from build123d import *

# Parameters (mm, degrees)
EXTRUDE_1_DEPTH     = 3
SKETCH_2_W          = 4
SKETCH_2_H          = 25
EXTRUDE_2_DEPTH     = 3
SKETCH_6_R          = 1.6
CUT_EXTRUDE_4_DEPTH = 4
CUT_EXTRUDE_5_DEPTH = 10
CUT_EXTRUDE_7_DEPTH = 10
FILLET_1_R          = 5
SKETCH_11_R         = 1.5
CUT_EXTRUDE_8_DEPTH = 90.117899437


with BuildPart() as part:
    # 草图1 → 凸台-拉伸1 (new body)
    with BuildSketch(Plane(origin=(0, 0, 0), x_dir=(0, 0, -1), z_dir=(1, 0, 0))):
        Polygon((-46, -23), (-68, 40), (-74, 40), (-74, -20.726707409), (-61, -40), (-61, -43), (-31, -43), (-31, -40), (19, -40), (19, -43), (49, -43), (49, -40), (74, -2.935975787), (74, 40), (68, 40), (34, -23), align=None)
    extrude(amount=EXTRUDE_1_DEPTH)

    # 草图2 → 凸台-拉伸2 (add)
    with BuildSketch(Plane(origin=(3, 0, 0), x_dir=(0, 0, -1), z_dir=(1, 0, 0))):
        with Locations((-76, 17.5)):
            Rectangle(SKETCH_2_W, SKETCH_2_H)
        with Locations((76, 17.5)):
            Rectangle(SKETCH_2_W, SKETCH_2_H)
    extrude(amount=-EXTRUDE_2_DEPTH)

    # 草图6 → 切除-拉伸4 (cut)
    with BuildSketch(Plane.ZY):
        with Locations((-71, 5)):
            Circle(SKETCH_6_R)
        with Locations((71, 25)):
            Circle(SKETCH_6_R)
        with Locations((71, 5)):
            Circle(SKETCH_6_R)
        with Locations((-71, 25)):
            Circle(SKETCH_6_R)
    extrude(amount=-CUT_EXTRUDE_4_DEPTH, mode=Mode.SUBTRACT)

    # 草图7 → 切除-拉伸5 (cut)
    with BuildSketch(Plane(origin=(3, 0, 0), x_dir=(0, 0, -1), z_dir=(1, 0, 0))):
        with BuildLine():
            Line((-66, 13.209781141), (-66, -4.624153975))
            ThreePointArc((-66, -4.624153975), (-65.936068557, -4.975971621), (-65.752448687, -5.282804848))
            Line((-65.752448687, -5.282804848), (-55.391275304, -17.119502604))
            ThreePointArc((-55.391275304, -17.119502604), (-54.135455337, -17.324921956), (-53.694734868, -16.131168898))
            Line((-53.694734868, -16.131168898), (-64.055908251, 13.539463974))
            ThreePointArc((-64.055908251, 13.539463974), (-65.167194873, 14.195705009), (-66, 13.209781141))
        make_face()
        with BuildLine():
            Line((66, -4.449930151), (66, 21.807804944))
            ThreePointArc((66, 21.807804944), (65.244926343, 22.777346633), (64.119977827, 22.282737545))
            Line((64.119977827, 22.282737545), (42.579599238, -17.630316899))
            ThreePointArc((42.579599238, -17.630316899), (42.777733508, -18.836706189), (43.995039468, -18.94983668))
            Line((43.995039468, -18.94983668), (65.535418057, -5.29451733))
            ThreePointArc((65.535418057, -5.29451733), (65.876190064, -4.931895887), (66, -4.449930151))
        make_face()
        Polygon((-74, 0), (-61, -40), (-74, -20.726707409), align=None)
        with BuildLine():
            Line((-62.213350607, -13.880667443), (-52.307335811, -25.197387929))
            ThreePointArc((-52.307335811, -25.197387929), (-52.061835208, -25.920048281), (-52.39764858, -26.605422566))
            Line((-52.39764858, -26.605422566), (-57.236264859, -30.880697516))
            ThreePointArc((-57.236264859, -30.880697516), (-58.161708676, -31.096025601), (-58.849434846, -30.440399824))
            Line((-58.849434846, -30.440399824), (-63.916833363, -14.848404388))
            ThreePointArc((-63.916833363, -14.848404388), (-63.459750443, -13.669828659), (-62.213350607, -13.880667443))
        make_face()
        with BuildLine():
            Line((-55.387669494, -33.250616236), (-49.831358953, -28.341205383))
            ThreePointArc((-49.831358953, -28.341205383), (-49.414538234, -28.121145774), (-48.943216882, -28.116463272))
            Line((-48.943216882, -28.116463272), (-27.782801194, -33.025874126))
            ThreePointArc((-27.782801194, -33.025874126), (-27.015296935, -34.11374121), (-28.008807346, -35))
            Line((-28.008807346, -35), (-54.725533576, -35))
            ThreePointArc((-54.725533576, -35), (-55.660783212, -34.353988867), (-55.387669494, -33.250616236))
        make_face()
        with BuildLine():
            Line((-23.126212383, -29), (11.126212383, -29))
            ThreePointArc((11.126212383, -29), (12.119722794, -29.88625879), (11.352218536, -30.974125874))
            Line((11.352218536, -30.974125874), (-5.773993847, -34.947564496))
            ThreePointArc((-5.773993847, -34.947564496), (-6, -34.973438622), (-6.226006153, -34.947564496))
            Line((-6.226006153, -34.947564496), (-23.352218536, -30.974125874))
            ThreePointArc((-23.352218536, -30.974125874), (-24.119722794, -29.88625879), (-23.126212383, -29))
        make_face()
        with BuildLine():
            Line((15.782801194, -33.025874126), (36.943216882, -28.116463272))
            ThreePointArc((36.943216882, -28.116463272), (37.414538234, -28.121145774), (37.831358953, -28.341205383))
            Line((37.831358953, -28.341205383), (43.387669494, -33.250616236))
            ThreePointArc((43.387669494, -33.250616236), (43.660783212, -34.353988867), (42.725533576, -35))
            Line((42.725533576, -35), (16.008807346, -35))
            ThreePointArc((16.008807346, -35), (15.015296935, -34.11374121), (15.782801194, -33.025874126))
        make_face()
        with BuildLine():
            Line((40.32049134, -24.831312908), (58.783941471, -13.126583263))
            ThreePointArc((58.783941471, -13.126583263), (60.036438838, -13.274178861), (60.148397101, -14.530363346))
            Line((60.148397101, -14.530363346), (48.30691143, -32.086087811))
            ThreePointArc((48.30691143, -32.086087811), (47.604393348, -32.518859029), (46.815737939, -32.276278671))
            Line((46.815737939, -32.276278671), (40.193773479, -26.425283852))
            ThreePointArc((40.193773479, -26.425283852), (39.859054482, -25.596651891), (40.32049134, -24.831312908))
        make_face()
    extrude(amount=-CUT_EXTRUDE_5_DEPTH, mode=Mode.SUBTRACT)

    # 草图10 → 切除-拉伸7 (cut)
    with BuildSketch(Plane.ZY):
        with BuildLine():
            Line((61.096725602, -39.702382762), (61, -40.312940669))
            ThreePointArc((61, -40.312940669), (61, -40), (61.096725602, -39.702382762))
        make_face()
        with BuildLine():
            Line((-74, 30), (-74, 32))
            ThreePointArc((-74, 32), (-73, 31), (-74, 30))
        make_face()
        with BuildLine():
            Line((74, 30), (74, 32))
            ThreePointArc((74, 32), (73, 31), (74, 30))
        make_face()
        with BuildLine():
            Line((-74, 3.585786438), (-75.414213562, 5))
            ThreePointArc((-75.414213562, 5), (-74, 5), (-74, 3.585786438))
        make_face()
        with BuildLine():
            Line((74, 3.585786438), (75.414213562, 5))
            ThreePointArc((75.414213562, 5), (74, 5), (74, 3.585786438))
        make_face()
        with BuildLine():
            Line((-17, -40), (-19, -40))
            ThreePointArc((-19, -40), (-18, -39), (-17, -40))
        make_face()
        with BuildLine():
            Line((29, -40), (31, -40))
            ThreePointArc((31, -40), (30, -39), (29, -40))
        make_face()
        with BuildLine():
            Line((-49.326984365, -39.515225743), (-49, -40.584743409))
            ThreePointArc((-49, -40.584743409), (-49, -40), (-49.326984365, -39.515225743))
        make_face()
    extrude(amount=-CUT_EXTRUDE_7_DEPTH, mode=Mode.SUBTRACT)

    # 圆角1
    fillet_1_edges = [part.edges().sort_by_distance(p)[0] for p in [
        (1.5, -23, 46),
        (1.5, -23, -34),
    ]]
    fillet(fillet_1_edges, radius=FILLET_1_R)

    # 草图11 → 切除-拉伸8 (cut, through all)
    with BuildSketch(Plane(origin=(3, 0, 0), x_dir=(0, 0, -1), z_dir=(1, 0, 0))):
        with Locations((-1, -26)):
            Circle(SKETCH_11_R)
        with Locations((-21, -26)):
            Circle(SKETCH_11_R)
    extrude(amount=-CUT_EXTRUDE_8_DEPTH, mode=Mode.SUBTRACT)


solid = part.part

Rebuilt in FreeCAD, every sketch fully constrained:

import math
import FreeCAD as App
import Part
import Sketcher

V = App.Vector
Q = App.Units.Quantity


def edges_at(feature, points):
    """Names of the edges that pass closest to the given points."""
    edges = feature.Shape.Edges
    near = lambda p: min(range(len(edges)), key=lambda i: edges[i].distToShape(Part.Vertex(*p))[0])
    return sorted({f"Edge{near(p) + 1}" for p in points})


def add_polygon(sketch, points):
    """Adds a closed chain of lines whose ends are joined by coincident constraints."""
    first, n = sketch.GeometryCount, len(points)
    for a, b in zip(points, points[1:] + points[:1]):
        sketch.addGeometry(Part.LineSegment(App.Vector(*a, 0), App.Vector(*b, 0)), False)
    for i in range(n):
        sketch.addConstraint(Sketcher.Constraint("Coincident", first + i, 2, first + (i + 1) % n, 1))

doc = App.newDocument("Part")
params = doc.addObject("Spreadsheet::Sheet", "Params")
for row, (alias, value) in enumerate([
    ("sketch1_width", "3 mm"),
    ("sketch1_height", "6 mm"),
    ("sketch1_height2", "30 mm"),
    ("sketch1_height3", "50 mm"),
    ("sketch1_height4", "80 mm"),
    ("pad1_length", "3 mm"),
    ("sketch2_width", "25 mm"),
    ("sketch2_height", "4 mm"),
    ("pad2_length", "3 mm"),
    ("sketch3_diameter", "3.2 mm"),
    ("pocket1_length", "4 mm"),
    ("sketch4_radius", "1 mm"),
    ("pocket2_length", "10 mm"),
    ("sketch5_radius", "1 mm"),
    ("pocket3_length", "10 mm"),
    ("fillet_radius", "5 mm"),
    ("sketch6_diameter", "3 mm"),
], start=1):
    params.set(f"A{row}", alias)
    params.set(f"B{row}", "=" + value)
    params.setAlias(f"B{row}", alias)

body = doc.addObject("PartDesign::Body", "Body")

# Sketch on YZ plane
sketch1 = body.newObject("Sketcher::SketchObject", "Sketch")
sketch1.AttachmentSupport = (doc.getObject("YZ_Plane"), [""])
sketch1.MapMode = "FlatFace"
add_polygon(sketch1, [(-23, 46), (40, 68), (40, 74), (-20.726707, 74), (-40, 61), (-43, 61), (-43, 31), (-40, 31), (-40, -19), (-43, -19), (-43, -49), (-40, -49), (-2.935976, -74), (40, -74), (40, -68), (-23, -34)])  # lines 0-15
sketch1.addConstraint([
    Sketcher.Constraint("Vertical", 1),
    Sketcher.Constraint("Horizontal", 2),
    Sketcher.Constraint("Horizontal", 4),
    Sketcher.Constraint("Vertical", 5),
    Sketcher.Constraint("Horizontal", 6),
    Sketcher.Constraint("Vertical", 7),
    Sketcher.Constraint("Horizontal", 8),
    Sketcher.Constraint("Vertical", 9),
    Sketcher.Constraint("Horizontal", 10),
    Sketcher.Constraint("Horizontal", 12),
    Sketcher.Constraint("Vertical", 13),
    Sketcher.Constraint("Vertical", 15),
    Sketcher.Constraint("Symmetric", 1, 2, 12, 2, -1),
    Sketcher.Constraint("Vertical", 3, 2, 6, 2),
    Sketcher.Constraint("Vertical", 5, 2, 8, 2),
    Sketcher.Constraint("Vertical", 7, 2, 10, 2),
    Sketcher.Constraint("Equal", 5, 9),
    Sketcher.Constraint("Equal", 1, 13),
    Sketcher.Constraint("DistanceX", 4, 2, 4, 1, Q("3 mm")),
    Sketcher.Constraint("DistanceY", 1, 1, 1, 2, Q("6 mm")),
    Sketcher.Constraint("DistanceY", 5, 2, 5, 1, Q("30 mm")),
    Sketcher.Constraint("DistanceY", 7, 2, 7, 1, Q("50 mm")),
    Sketcher.Constraint("DistanceY", 15, 1, 15, 2, Q("80 mm")),
    Sketcher.Constraint("Angle", 3, Q("-146 deg")),
    Sketcher.Constraint("Angle", 11, Q("-34 deg")),
    Sketcher.Constraint("DistanceX", -1, 1, 0, 2, Q("40 mm")),
    Sketcher.Constraint("DistanceY", -1, 1, 0, 2, Q("68 mm")),
    Sketcher.Constraint("DistanceX", 3, 2, -1, 1, Q("40 mm")),
    Sketcher.Constraint("DistanceY", -1, 1, 3, 2, Q("61 mm")),
    Sketcher.Constraint("DistanceX", 14, 2, -1, 1, Q("23 mm")),
    Sketcher.Constraint("DistanceY", 14, 2, -1, 1, Q("34 mm")),
])
sketch1.setExpression("Constraints[34]", "Params.sketch1_width")
sketch1.setExpression("Constraints[35]", "Params.sketch1_height")
sketch1.setExpression("Constraints[36]", "Params.sketch1_height2")
sketch1.setExpression("Constraints[37]", "Params.sketch1_height3")
sketch1.setExpression("Constraints[38]", "Params.sketch1_height4")
pad1 = body.newObject("PartDesign::Pad", "Pad")
pad1.Profile = sketch1
pad1.setExpression("Length", "Params.pad1_length")

# Sketch on YZ plane
sketch2 = body.newObject("Sketcher::SketchObject", "Sketch001")
sketch2.AttachmentSupport = (doc.getObject("YZ_Plane"), [""])
sketch2.MapMode = "FlatFace"
sketch2.AttachmentOffset = App.Placement(V(0, 0, 3), App.Rotation())
add_polygon(sketch2, [(30, 78), (5, 78), (5, 74), (30, 74)])  # lines 0-3
add_polygon(sketch2, [(30, -74), (5, -74), (5, -78), (30, -78)])  # lines 4-7
sketch2.addConstraint([
    Sketcher.Constraint("Horizontal", 0),
    Sketcher.Constraint("Vertical", 1),
    Sketcher.Constraint("Horizontal", 2),
    Sketcher.Constraint("Vertical", 3),
    Sketcher.Constraint("Horizontal", 4),
    Sketcher.Constraint("Vertical", 5),
    Sketcher.Constraint("Horizontal", 6),
    Sketcher.Constraint("Vertical", 7),
    Sketcher.Constraint("Symmetric", 1, 2, 4, 2, -1),
    Sketcher.Constraint("Symmetric", 3, 2, 6, 2, -1),
    Sketcher.Constraint("DistanceX", 0, 2, 0, 1, Q("25 mm")),
    Sketcher.Constraint("DistanceY", 1, 2, 1, 1, Q("4 mm")),
    Sketcher.Constraint("DistanceX", -1, 1, 0, 2, Q("5 mm")),
    Sketcher.Constraint("DistanceY", -1, 1, 0, 2, Q("78 mm")),
])
sketch2.setExpression("Constraints[18]", "Params.sketch2_width")
sketch2.setExpression("Constraints[19]", "Params.sketch2_height")
pad2 = body.newObject("PartDesign::Pad", "Pad001")
pad2.Profile = sketch2
pad2.setExpression("Length", "Params.pad2_length")
pad2.Reversed = True

# Sketch on YZ plane
sketch3 = body.newObject("Sketcher::SketchObject", "Sketch002")
sketch3.AttachmentSupport = (doc.getObject("YZ_Plane"), [""])
sketch3.MapMode = "FlatFace"
sketch3.addGeometry([
    Part.Circle(V(5, -71, 0), V(0, 0, 1), 1.6),
    Part.Circle(V(25, 71, 0), V(0, 0, 1), 1.6),
    Part.Circle(V(5, 71, 0), V(0, 0, 1), 1.6),
    Part.Circle(V(25, -71, 0), V(0, 0, 1), 1.6),
], False)
sketch3.addConstraint([
    Sketcher.Constraint("Equal", 0, 1),
    Sketcher.Constraint("Equal", 1, 2),
    Sketcher.Constraint("Equal", 2, 3),
    Sketcher.Constraint("Symmetric", 0, 3, 2, 3, -1),
    Sketcher.Constraint("Symmetric", 1, 3, 3, 3, -1),
    Sketcher.Constraint("Horizontal", 1, 3, 2, 3),
    Sketcher.Constraint("Diameter", 0, Q("3.2 mm")),
    Sketcher.Constraint("DistanceX", -1, 1, 0, 3, Q("5 mm")),
    Sketcher.Constraint("DistanceY", 0, 3, -1, 1, Q("71 mm")),
    Sketcher.Constraint("DistanceX", -1, 1, 1, 3, Q("25 mm")),
])
sketch3.setExpression("Constraints[6]", "Params.sketch3_diameter")
pocket1 = body.newObject("PartDesign::Pocket", "Pocket")
pocket1.Profile = sketch3
pocket1.setExpression("Length", "Params.pocket1_length")
pocket1.Reversed = True

# Sketch on YZ plane
sketch4 = body.newObject("Sketcher::SketchObject", "Sketch003")
sketch4.AttachmentSupport = (doc.getObject("YZ_Plane"), [""])
sketch4.MapMode = "FlatFace"
sketch4.AttachmentOffset = App.Placement(V(0, 0, 3), App.Rotation())
sketch4.addGeometry(Part.LineSegment(V(13.209781, 66, 0), V(-4.624154, 66, 0)), False)  # 0
sketch4.addGeometry(Part.ArcOfCircle(Part.Circle(V(-4.624154, 65, 0), V(0, 0, 1), 1), math.radians(90), math.radians(131.197062)), False)  # 1
sketch4.addGeometry(Part.LineSegment(V(-5.282805, 65.752449, 0), V(-17.119503, 55.391275, 0)), False)  # 2
sketch4.addGeometry(Part.ArcOfCircle(Part.Circle(V(-16.460852, 54.638827, 0), V(0, 0, 1), 1), math.radians(131.197062), math.radians(289.249526)), False)  # 3
sketch4.addGeometry(Part.LineSegment(V(-16.131169, 53.694735, 0), V(13.539464, 64.055908, 0)), False)  # 4
sketch4.addGeometry(Part.ArcOfCircle(Part.Circle(V(13.209781, 65, 0), V(0, 0, 1), 1), math.radians(-70.750474), math.radians(90)), False)  # 5
sketch4.addGeometry(Part.LineSegment(V(-4.44993, -66, 0), V(21.807805, -66, 0)), False)  # 6
sketch4.addGeometry(Part.ArcOfCircle(Part.Circle(V(21.807805, -65, 0), V(0, 0, 1), 1), math.radians(-90), math.radians(61.645038)), False)  # 7
sketch4.addGeometry(Part.LineSegment(V(22.282738, -64.119978, 0), V(-17.630317, -42.579599, 0)), False)  # 8
sketch4.addGeometry(Part.ArcOfCircle(Part.Circle(V(-18.105249, -43.459621, 0), V(0, 0, 1), 1), math.radians(61.645038), math.radians(212.372267)), False)  # 9
sketch4.addGeometry(Part.LineSegment(V(-18.949837, -43.995039, 0), V(-5.294517, -65.535418, 0)), False)  # 10
sketch4.addGeometry(Part.ArcOfCircle(Part.Circle(V(-4.44993, -65, 0), V(0, 0, 1), 1), math.radians(-147.627733), math.radians(-90)), False)  # 11
add_polygon(sketch4, [(-40, 61), (0, 74), (-20.726707, 74)])  # lines 12-14
sketch4.addGeometry(Part.LineSegment(V(-25.197388, 52.307336, 0), V(-13.880667, 62.213351, 0)), False)  # 15
sketch4.addGeometry(Part.ArcOfCircle(Part.Circle(V(-14.539318, 62.965799, 0), V(0, 0, 1), 1), math.radians(-48.802938), math.radians(108.004162)), False)  # 16
sketch4.addGeometry(Part.LineSegment(V(-14.848404, 63.916833, 0), V(-30.4404, 58.849435, 0)), False)  # 17
sketch4.addGeometry(Part.ArcOfCircle(Part.Circle(V(-30.131314, 57.898401, 0), V(0, 0, 1), 1), math.radians(108.004162), math.radians(221.462974)), False)  # 18
sketch4.addGeometry(Part.LineSegment(V(-30.880698, 57.236265, 0), V(-26.605423, 52.397649, 0)), False)  # 19
sketch4.addGeometry(Part.ArcOfCircle(Part.Circle(V(-25.856039, 53.059784, 0), V(0, 0, 1), 1), math.radians(-138.537026), math.radians(-48.802938)), False)  # 20
sketch4.addGeometry(Part.LineSegment(V(-28.341205, 49.831359, 0), V(-33.250616, 55.387669, 0)), False)  # 21
sketch4.addGeometry(Part.ArcOfCircle(Part.Circle(V(-34, 54.725534, 0), V(0, 0, 1), 1), math.radians(41.462974), math.radians(180)), False)  # 22
sketch4.addGeometry(Part.LineSegment(V(-35, 54.725534, 0), V(-35, 28.008807, 0)), False)  # 23
sketch4.addGeometry(Part.ArcOfCircle(Part.Circle(V(-34, 28.008807, 0), V(0, 0, 1), 1), math.radians(180), math.radians(346.937949)), False)  # 24
sketch4.addGeometry(Part.LineSegment(V(-33.025874, 27.782801, 0), V(-28.116463, 48.943217, 0)), False)  # 25
sketch4.addGeometry(Part.ArcOfCircle(Part.Circle(V(-29.090589, 49.169223, 0), V(0, 0, 1), 1), math.radians(-13.062051), math.radians(41.462974)), False)  # 26
sketch4.addGeometry(Part.LineSegment(V(-29, -11.126212, 0), V(-29, 23.126212, 0)), False)  # 27
sketch4.addGeometry(Part.ArcOfCircle(Part.Circle(V(-30, 23.126212, 0), V(0, 0, 1), 1), math.radians(0), math.radians(166.937949)), False)  # 28
sketch4.addGeometry(Part.LineSegment(V(-30.974126, 23.352219, 0), V(-34.947564, 6.226006, 0)), False)  # 29
sketch4.addGeometry(Part.ArcOfCircle(Part.Circle(V(-33.973439, 6, 0), V(0, 0, 1), 1), math.radians(166.937949), math.radians(193.062051)), False)  # 30
sketch4.addGeometry(Part.LineSegment(V(-34.947564, 5.773994, 0), V(-30.974126, -11.352219, 0)), False)  # 31
sketch4.addGeometry(Part.ArcOfCircle(Part.Circle(V(-30, -11.126212, 0), V(0, 0, 1), 1), math.radians(-166.937949), math.radians(0)), False)  # 32
sketch4.addGeometry(Part.LineSegment(V(-28.116463, -36.943217, 0), V(-33.025874, -15.782801, 0)), False)  # 33
sketch4.addGeometry(Part.ArcOfCircle(Part.Circle(V(-34, -16.008807, 0), V(0, 0, 1), 1), math.radians(13.062051), math.radians(180)), False)  # 34
sketch4.addGeometry(Part.LineSegment(V(-35, -16.008807, 0), V(-35, -42.725534, 0)), False)  # 35
sketch4.addGeometry(Part.ArcOfCircle(Part.Circle(V(-34, -42.725534, 0), V(0, 0, 1), 1), math.radians(180), math.radians(318.537026)), False)  # 36
sketch4.addGeometry(Part.LineSegment(V(-33.250616, -43.387669, 0), V(-28.341205, -37.831359, 0)), False)  # 37
sketch4.addGeometry(Part.ArcOfCircle(Part.Circle(V(-29.090589, -37.169223, 0), V(0, 0, 1), 1), math.radians(-41.462974), math.radians(13.062051)), False)  # 38
sketch4.addGeometry(Part.LineSegment(V(-13.126583, -58.783941, 0), V(-24.831313, -40.320491, 0)), False)  # 39
sketch4.addGeometry(Part.ArcOfCircle(Part.Circle(V(-25.6759, -40.855909, 0), V(0, 0, 1), 1), math.radians(32.372268), math.radians(138.537026)), False)  # 40
sketch4.addGeometry(Part.LineSegment(V(-26.425284, -40.193773, 0), V(-32.276279, -46.815738, 0)), False)  # 41
sketch4.addGeometry(Part.ArcOfCircle(Part.Circle(V(-31.526895, -47.477874, 0), V(0, 0, 1), 1), math.radians(138.537026), math.radians(236)), False)  # 42
sketch4.addGeometry(Part.LineSegment(V(-32.086088, -48.306911, 0), V(-14.530363, -60.148397, 0)), False)  # 43
sketch4.addGeometry(Part.ArcOfCircle(Part.Circle(V(-13.97117, -59.31936, 0), V(0, 0, 1), 1), math.radians(-124), math.radians(32.372268)), False)  # 44
sketch4.addConstraint([
    Sketcher.Constraint("Tangent", 0, 2, 1, 1),
    Sketcher.Constraint("Tangent", 1, 2, 2, 1),
    Sketcher.Constraint("Tangent", 2, 2, 3, 1),
    Sketcher.Constraint("Tangent", 3, 2, 4, 1),
    Sketcher.Constraint("Tangent", 4, 2, 5, 1),
    Sketcher.Constraint("Tangent", 5, 2, 0, 1),
    Sketcher.Constraint("Tangent", 6, 2, 7, 1),
    Sketcher.Constraint("Tangent", 7, 2, 8, 1),
    Sketcher.Constraint("Tangent", 8, 2, 9, 1),
    Sketcher.Constraint("Tangent", 9, 2, 10, 1),
    Sketcher.Constraint("Tangent", 10, 2, 11, 1),
    Sketcher.Constraint("Tangent", 11, 2, 6, 1),
    Sketcher.Constraint("Tangent", 15, 2, 16, 1),
    Sketcher.Constraint("Tangent", 16, 2, 17, 1),
    Sketcher.Constraint("Tangent", 17, 2, 18, 1),
    Sketcher.Constraint("Tangent", 18, 2, 19, 1),
    Sketcher.Constraint("Tangent", 19, 2, 20, 1),
    Sketcher.Constraint("Tangent", 20, 2, 15, 1),
    Sketcher.Constraint("Tangent", 21, 2, 22, 1),
    Sketcher.Constraint("Tangent", 22, 2, 23, 1),
    Sketcher.Constraint("Tangent", 23, 2, 24, 1),
    Sketcher.Constraint("Tangent", 24, 2, 25, 1),
    Sketcher.Constraint("Tangent", 25, 2, 26, 1),
    Sketcher.Constraint("Tangent", 26, 2, 21, 1),
    Sketcher.Constraint("Tangent", 27, 2, 28, 1),
    Sketcher.Constraint("Tangent", 28, 2, 29, 1),
    Sketcher.Constraint("Tangent", 29, 2, 30, 1),
    Sketcher.Constraint("Tangent", 30, 2, 31, 1),
    Sketcher.Constraint("Tangent", 31, 2, 32, 1),
    Sketcher.Constraint("Tangent", 32, 2, 27, 1),
    Sketcher.Constraint("Tangent", 33, 2, 34, 1),
    Sketcher.Constraint("Tangent", 34, 2, 35, 1),
    Sketcher.Constraint("Tangent", 35, 2, 36, 1),
    Sketcher.Constraint("Tangent", 36, 2, 37, 1),
    Sketcher.Constraint("Tangent", 37, 2, 38, 1),
    Sketcher.Constraint("Tangent", 38, 2, 33, 1),
    Sketcher.Constraint("Tangent", 39, 2, 40, 1),
    Sketcher.Constraint("Tangent", 40, 2, 41, 1),
    Sketcher.Constraint("Tangent", 41, 2, 42, 1),
    Sketcher.Constraint("Tangent", 42, 2, 43, 1),
    Sketcher.Constraint("Tangent", 43, 2, 44, 1),
    Sketcher.Constraint("Tangent", 44, 2, 39, 1),
    Sketcher.Constraint("Horizontal", 0),
    Sketcher.Constraint("Horizontal", 6),
    Sketcher.Constraint("Horizontal", 13),
    Sketcher.Constraint("Vertical", 23),
    Sketcher.Constraint("Vertical", 27),
    Sketcher.Constraint("Vertical", 35),
    Sketcher.Constraint("Equal", 1, 3),
    Sketcher.Constraint("Equal", 3, 5),
    Sketcher.Constraint("Equal", 5, 7),
    Sketcher.Constraint("Equal", 7, 9),
    Sketcher.Constraint("Equal", 9, 11),
    Sketcher.Constraint("Equal", 11, 16),
    Sketcher.Constraint("Equal", 16, 18),
    Sketcher.Constraint("Equal", 18, 20),
    Sketcher.Constraint("Equal", 20, 22),
    Sketcher.Constraint("Equal", 22, 24),
    Sketcher.Constraint("Equal", 24, 26),
    Sketcher.Constraint("Equal", 26, 28),
    Sketcher.Constraint("Equal", 28, 30),
    Sketcher.Constraint("Equal", 30, 32),
    Sketcher.Constraint("Equal", 32, 34),
    Sketcher.Constraint("Equal", 34, 36),
    Sketcher.Constraint("Equal", 36, 38),
    Sketcher.Constraint("Equal", 38, 40),
    Sketcher.Constraint("Equal", 40, 42),
    Sketcher.Constraint("Equal", 42, 44),
    Sketcher.Constraint("PointOnObject", 12, 2, -2),
    Sketcher.Constraint("Parallel", 2, 15),
    Sketcher.Constraint("Parallel", 12, 17),
    Sketcher.Constraint("Parallel", 19, 21),
    Sketcher.Constraint("Parallel", 25, 29),
    Sketcher.Constraint("Parallel", 31, 33),
    Sketcher.Constraint("Parallel", 10, 39),
    Sketcher.Constraint("Parallel", 37, 41),
    Sketcher.Constraint("Vertical", 24, 3, 34, 3),
    Sketcher.Constraint("Vertical", 26, 3, 38, 3),
    Sketcher.Constraint("Vertical", 21, 2, 36, 2),
    Sketcher.Constraint("Equal", 23, 35),
    Sketcher.Constraint("Radius", 1, Q("1 mm")),
    Sketcher.Constraint("Angle", 14, Q("-146 deg")),
    Sketcher.Constraint("Angle", 43, Q("-34 deg")),
    Sketcher.Constraint("DistanceY", -1, 1, 1, 3, Q("65 mm")),
    Sketcher.Constraint("DistanceY", 7, 3, -1, 1, Q("65 mm")),
    Sketcher.Constraint("DistanceX", 22, 3, -1, 1, Q("34 mm")),
    Sketcher.Constraint("DistanceX", 28, 3, -1, 1, Q("30 mm")),
    Sketcher.Constraint("DistanceY", -1, 1, 30, 3, Q("6 mm")),
    Sketcher.Constraint("DistanceY", -1, 1, 12, 2, Q("74 mm")),
    Sketcher.Constraint("DistanceX", 14, 2, -1, 1, Q("40 mm")),
    Sketcher.Constraint("DistanceY", -1, 1, 14, 2, Q("61 mm")),
    Sketcher.Constraint("Distance", 4, Q("31.427701 mm")),
    Sketcher.Constraint("Distance", 8, Q("45.354601 mm")),
    Sketcher.Constraint("DistanceY", -1, 1, 16, 3, Q("62.965799 mm")),
    Sketcher.Constraint("DistanceY", -1, 1, 18, 3, Q("57.898401 mm")),
    Sketcher.Constraint("DistanceX", 40, 3, -1, 1, Q("25.6759 mm")),
    Sketcher.Constraint("DistanceY", 8, 2, -1, 1, Q("42.579599 mm")),
    Sketcher.Constraint("DistanceX", 17, 2, -1, 1, Q("30.4404 mm")),
    Sketcher.Constraint("DistanceY", -1, 1, 24, 2, Q("27.782801 mm")),
    Sketcher.Constraint("DistanceY", 33, 2, -1, 1, Q("15.782801 mm")),
    Sketcher.Constraint("Distance", 29, Q("17.581108 mm")),
    Sketcher.Constraint("Distance", 43, Q("21.17603 mm")),
    Sketcher.Constraint("DistanceX", 0, 2, 0, 1, Q("17.833935 mm")),
    Sketcher.Constraint("DistanceX", 6, 1, 6, 2, Q("26.257735 mm")),
    Sketcher.Constraint("DistanceY", 23, 2, 23, 1, Q("26.716726 mm")),
    Sketcher.Constraint("DistanceY", 27, 1, 27, 2, Q("34.252425 mm")),
    Sketcher.Constraint("DistanceX", 3, 3, -1, 1, Q("16.460852 mm")),
    Sketcher.Constraint("DistanceX", -1, 1, 5, 3, Q("13.209781 mm")),
    Sketcher.Constraint("DistanceX", 9, 3, -1, 1, Q("18.105249 mm")),
    Sketcher.Constraint("DistanceX", 20, 3, -1, 1, Q("25.856039 mm")),
    Sketcher.Constraint("DistanceY", 40, 3, -1, 1, Q("40.855909 mm")),
])
sketch4.setExpression("Constraints[83]", "Params.sketch4_radius")
pocket2 = body.newObject("PartDesign::Pocket", "Pocket001")
pocket2.Profile = sketch4
pocket2.setExpression("Length", "Params.pocket2_length")

# Sketch on YZ plane
sketch5 = body.newObject("Sketcher::SketchObject", "Sketch004")
sketch5.AttachmentSupport = (doc.getObject("YZ_Plane"), [""])
sketch5.MapMode = "FlatFace"
sketch5.addGeometry([
    Part.LineSegment(V(-40.312941, 61, 0), V(-39.702383, 61.096726, 0)),  # 0
    Part.ArcOfCircle(Part.Circle(V(-40.15647, 61.987683, 0), V(0, 0, 1), 1), math.radians(-99.002081), math.radians(-62.993758)),  # 1
    Part.LineSegment(V(32, -74, 0), V(30, -74, 0)),  # 2
    Part.ArcOfCircle(Part.Circle(V(31, -74, 0), V(0, 0, 1), 1), math.radians(0), math.radians(180)),  # 3
    Part.LineSegment(V(30, 74, 0), V(32, 74, 0)),  # 4
    Part.ArcOfCircle(Part.Circle(V(31, 74, 0), V(0, 0, 1), 1), math.radians(180), math.radians(360)),  # 5
    Part.LineSegment(V(5, -75.414214, 0), V(3.585786, -74, 0)),  # 6
    Part.ArcOfCircle(Part.Circle(V(4.292893, -74.707107, 0), V(0, 0, 1), 1), math.radians(-45), math.radians(135)),  # 7
    Part.LineSegment(V(3.585786, 74, 0), V(5, 75.414214, 0)),  # 8
    Part.ArcOfCircle(Part.Circle(V(4.292893, 74.707107, 0), V(0, 0, 1), 1), math.radians(-135), math.radians(45)),  # 9
    Part.LineSegment(V(-40, -19, 0), V(-40, -17, 0)),  # 10
    Part.ArcOfCircle(Part.Circle(V(-40, -18, 0), V(0, 0, 1), 1), math.radians(-90), math.radians(90)),  # 11
    Part.LineSegment(V(-40, 29, 0), V(-40, 31, 0)),  # 12
    Part.ArcOfCircle(Part.Circle(V(-40, 30, 0), V(0, 0, 1), 1), math.radians(-90), math.radians(90)),  # 13
    Part.LineSegment(V(-39.515226, -49.326984, 0), V(-40.584743, -49, 0)),  # 14
    Part.ArcOfCircle(Part.Circle(V(-40.292372, -49.956305, 0), V(0, 0, 1), 1), math.radians(39), math.radians(107)),  # 15
], False)
sketch5.addConstraint([
    Sketcher.Constraint("Coincident", 0, 1, 1, 1),
    Sketcher.Constraint("Coincident", 1, 2, 0, 2),
    Sketcher.Constraint("Coincident", 2, 1, 3, 1),
    Sketcher.Constraint("Coincident", 3, 2, 2, 2),
    Sketcher.Constraint("Coincident", 4, 1, 5, 1),
    Sketcher.Constraint("Coincident", 5, 2, 4, 2),
    Sketcher.Constraint("Coincident", 6, 1, 7, 1),
    Sketcher.Constraint("Coincident", 7, 2, 6, 2),
    Sketcher.Constraint("Coincident", 8, 1, 9, 1),
    Sketcher.Constraint("Coincident", 9, 2, 8, 2),
    Sketcher.Constraint("Coincident", 10, 1, 11, 1),
    Sketcher.Constraint("Coincident", 11, 2, 10, 2),
    Sketcher.Constraint("Coincident", 12, 1, 13, 1),
    Sketcher.Constraint("Coincident", 13, 2, 12, 2),
    Sketcher.Constraint("Coincident", 14, 1, 15, 1),
    Sketcher.Constraint("Coincident", 15, 2, 14, 2),
    Sketcher.Constraint("Horizontal", 2),
    Sketcher.Constraint("Horizontal", 4),
    Sketcher.Constraint("Vertical", 10),
    Sketcher.Constraint("Vertical", 12),
    Sketcher.Constraint("Equal", 1, 3),
    Sketcher.Constraint("Equal", 3, 5),
    Sketcher.Constraint("Equal", 5, 7),
    Sketcher.Constraint("Equal", 7, 9),
    Sketcher.Constraint("Equal", 9, 11),
    Sketcher.Constraint("Equal", 11, 13),
    Sketcher.Constraint("Equal", 13, 15),
    Sketcher.Constraint("Symmetric", 3, 3, 5, 3, -1),
    Sketcher.Constraint("Symmetric", 7, 3, 9, 3, -1),
    Sketcher.Constraint("Perpendicular", 6, 8),
    Sketcher.Constraint("Horizontal", 3, 3, 2, 1),
    Sketcher.Constraint("Horizontal", 5, 3, 4, 1),
    Sketcher.Constraint("Horizontal", 3, 2, 7, 2),
    Sketcher.Constraint("Horizontal", 5, 2, 8, 1),
    Sketcher.Constraint("Vertical", 11, 3, 13, 3),
    Sketcher.Constraint("Vertical", 6, 1, 9, 2),
    Sketcher.Constraint("Vertical", 13, 3, 10, 1),
    Sketcher.Constraint("Vertical", 11, 2, 12, 1),
    Sketcher.Constraint("Radius", 1, Q("1 mm")),
    Sketcher.Constraint("Angle", 14, Q("163 deg")),
    Sketcher.Constraint("DistanceX", -1, 1, 3, 3, Q("31 mm")),
    Sketcher.Constraint("DistanceY", 3, 3, -1, 1, Q("74 mm")),
    Sketcher.Constraint("DistanceX", 11, 3, -1, 1, Q("40 mm")),
    Sketcher.Constraint("DistanceY", 11, 3, -1, 1, Q("18 mm")),
    Sketcher.Constraint("DistanceY", -1, 1, 13, 3, Q("30 mm")),
    Sketcher.Constraint("DistanceY", -1, 1, 0, 1, Q("61 mm")),
    Sketcher.Constraint("DistanceX", -1, 1, 6, 1, Q("5 mm")),
    Sketcher.Constraint("DistanceY", 15, 2, -1, 1, Q("49 mm")),
    Sketcher.Constraint("DistanceX", 15, 3, 1, 3, Q("0.135901 mm")),
    Sketcher.Constraint("DistanceX", 1, 3, -1, 1, Q("40.15647 mm")),
    Sketcher.Constraint("DistanceX", 0, 1, -1, 1, Q("40.312941 mm")),
    Sketcher.Constraint("DistanceY", 7, 3, 1, 3, Q("136.694789 mm")),
    Sketcher.Constraint("DistanceY", 1, 2, 9, 3, Q("13.610381 mm")),
    Sketcher.Constraint("DistanceY", 6, 1, 15, 3, Q("25.457909 mm")),
])
sketch5.setExpression("Constraints[38]", "Params.sketch5_radius")
pocket3 = body.newObject("PartDesign::Pocket", "Pocket002")
pocket3.Profile = sketch5
pocket3.setExpression("Length", "Params.pocket3_length")
pocket3.Reversed = True
doc.recompute()

fillet = body.newObject("PartDesign::Fillet", "Fillet")
fillet.Base = (pocket3, edges_at(pocket3, [(1.5, -23, 46), (1.5, -23, -34)]))
fillet.setExpression("Radius", "Params.fillet_radius")

# Sketch on YZ plane
sketch6 = body.newObject("Sketcher::SketchObject", "Sketch005")
sketch6.AttachmentSupport = (doc.getObject("YZ_Plane"), [""])
sketch6.MapMode = "FlatFace"
sketch6.AttachmentOffset = App.Placement(V(0, 0, 3), App.Rotation())
sketch6.addGeometry([
    Part.Circle(V(-26, 1, 0), V(0, 0, 1), 1.5),
    Part.Circle(V(-26, 21, 0), V(0, 0, 1), 1.5),
], False)
sketch6.addConstraint([
    Sketcher.Constraint("Equal", 0, 1),
    Sketcher.Constraint("Vertical", 0, 3, 1, 3),
    Sketcher.Constraint("Diameter", 0, Q("3 mm")),
    Sketcher.Constraint("DistanceX", 0, 3, -1, 1, Q("26 mm")),
    Sketcher.Constraint("DistanceY", -1, 1, 0, 3, Q("1 mm")),
    Sketcher.Constraint("DistanceY", -1, 1, 1, 3, Q("21 mm")),
])
sketch6.setExpression("Constraints[2]", "Params.sketch6_diameter")
pocket4 = body.newObject("PartDesign::Pocket", "Pocket003")
pocket4.Profile = sketch6
pocket4.Type = "ThroughAll"

doc.recompute()
